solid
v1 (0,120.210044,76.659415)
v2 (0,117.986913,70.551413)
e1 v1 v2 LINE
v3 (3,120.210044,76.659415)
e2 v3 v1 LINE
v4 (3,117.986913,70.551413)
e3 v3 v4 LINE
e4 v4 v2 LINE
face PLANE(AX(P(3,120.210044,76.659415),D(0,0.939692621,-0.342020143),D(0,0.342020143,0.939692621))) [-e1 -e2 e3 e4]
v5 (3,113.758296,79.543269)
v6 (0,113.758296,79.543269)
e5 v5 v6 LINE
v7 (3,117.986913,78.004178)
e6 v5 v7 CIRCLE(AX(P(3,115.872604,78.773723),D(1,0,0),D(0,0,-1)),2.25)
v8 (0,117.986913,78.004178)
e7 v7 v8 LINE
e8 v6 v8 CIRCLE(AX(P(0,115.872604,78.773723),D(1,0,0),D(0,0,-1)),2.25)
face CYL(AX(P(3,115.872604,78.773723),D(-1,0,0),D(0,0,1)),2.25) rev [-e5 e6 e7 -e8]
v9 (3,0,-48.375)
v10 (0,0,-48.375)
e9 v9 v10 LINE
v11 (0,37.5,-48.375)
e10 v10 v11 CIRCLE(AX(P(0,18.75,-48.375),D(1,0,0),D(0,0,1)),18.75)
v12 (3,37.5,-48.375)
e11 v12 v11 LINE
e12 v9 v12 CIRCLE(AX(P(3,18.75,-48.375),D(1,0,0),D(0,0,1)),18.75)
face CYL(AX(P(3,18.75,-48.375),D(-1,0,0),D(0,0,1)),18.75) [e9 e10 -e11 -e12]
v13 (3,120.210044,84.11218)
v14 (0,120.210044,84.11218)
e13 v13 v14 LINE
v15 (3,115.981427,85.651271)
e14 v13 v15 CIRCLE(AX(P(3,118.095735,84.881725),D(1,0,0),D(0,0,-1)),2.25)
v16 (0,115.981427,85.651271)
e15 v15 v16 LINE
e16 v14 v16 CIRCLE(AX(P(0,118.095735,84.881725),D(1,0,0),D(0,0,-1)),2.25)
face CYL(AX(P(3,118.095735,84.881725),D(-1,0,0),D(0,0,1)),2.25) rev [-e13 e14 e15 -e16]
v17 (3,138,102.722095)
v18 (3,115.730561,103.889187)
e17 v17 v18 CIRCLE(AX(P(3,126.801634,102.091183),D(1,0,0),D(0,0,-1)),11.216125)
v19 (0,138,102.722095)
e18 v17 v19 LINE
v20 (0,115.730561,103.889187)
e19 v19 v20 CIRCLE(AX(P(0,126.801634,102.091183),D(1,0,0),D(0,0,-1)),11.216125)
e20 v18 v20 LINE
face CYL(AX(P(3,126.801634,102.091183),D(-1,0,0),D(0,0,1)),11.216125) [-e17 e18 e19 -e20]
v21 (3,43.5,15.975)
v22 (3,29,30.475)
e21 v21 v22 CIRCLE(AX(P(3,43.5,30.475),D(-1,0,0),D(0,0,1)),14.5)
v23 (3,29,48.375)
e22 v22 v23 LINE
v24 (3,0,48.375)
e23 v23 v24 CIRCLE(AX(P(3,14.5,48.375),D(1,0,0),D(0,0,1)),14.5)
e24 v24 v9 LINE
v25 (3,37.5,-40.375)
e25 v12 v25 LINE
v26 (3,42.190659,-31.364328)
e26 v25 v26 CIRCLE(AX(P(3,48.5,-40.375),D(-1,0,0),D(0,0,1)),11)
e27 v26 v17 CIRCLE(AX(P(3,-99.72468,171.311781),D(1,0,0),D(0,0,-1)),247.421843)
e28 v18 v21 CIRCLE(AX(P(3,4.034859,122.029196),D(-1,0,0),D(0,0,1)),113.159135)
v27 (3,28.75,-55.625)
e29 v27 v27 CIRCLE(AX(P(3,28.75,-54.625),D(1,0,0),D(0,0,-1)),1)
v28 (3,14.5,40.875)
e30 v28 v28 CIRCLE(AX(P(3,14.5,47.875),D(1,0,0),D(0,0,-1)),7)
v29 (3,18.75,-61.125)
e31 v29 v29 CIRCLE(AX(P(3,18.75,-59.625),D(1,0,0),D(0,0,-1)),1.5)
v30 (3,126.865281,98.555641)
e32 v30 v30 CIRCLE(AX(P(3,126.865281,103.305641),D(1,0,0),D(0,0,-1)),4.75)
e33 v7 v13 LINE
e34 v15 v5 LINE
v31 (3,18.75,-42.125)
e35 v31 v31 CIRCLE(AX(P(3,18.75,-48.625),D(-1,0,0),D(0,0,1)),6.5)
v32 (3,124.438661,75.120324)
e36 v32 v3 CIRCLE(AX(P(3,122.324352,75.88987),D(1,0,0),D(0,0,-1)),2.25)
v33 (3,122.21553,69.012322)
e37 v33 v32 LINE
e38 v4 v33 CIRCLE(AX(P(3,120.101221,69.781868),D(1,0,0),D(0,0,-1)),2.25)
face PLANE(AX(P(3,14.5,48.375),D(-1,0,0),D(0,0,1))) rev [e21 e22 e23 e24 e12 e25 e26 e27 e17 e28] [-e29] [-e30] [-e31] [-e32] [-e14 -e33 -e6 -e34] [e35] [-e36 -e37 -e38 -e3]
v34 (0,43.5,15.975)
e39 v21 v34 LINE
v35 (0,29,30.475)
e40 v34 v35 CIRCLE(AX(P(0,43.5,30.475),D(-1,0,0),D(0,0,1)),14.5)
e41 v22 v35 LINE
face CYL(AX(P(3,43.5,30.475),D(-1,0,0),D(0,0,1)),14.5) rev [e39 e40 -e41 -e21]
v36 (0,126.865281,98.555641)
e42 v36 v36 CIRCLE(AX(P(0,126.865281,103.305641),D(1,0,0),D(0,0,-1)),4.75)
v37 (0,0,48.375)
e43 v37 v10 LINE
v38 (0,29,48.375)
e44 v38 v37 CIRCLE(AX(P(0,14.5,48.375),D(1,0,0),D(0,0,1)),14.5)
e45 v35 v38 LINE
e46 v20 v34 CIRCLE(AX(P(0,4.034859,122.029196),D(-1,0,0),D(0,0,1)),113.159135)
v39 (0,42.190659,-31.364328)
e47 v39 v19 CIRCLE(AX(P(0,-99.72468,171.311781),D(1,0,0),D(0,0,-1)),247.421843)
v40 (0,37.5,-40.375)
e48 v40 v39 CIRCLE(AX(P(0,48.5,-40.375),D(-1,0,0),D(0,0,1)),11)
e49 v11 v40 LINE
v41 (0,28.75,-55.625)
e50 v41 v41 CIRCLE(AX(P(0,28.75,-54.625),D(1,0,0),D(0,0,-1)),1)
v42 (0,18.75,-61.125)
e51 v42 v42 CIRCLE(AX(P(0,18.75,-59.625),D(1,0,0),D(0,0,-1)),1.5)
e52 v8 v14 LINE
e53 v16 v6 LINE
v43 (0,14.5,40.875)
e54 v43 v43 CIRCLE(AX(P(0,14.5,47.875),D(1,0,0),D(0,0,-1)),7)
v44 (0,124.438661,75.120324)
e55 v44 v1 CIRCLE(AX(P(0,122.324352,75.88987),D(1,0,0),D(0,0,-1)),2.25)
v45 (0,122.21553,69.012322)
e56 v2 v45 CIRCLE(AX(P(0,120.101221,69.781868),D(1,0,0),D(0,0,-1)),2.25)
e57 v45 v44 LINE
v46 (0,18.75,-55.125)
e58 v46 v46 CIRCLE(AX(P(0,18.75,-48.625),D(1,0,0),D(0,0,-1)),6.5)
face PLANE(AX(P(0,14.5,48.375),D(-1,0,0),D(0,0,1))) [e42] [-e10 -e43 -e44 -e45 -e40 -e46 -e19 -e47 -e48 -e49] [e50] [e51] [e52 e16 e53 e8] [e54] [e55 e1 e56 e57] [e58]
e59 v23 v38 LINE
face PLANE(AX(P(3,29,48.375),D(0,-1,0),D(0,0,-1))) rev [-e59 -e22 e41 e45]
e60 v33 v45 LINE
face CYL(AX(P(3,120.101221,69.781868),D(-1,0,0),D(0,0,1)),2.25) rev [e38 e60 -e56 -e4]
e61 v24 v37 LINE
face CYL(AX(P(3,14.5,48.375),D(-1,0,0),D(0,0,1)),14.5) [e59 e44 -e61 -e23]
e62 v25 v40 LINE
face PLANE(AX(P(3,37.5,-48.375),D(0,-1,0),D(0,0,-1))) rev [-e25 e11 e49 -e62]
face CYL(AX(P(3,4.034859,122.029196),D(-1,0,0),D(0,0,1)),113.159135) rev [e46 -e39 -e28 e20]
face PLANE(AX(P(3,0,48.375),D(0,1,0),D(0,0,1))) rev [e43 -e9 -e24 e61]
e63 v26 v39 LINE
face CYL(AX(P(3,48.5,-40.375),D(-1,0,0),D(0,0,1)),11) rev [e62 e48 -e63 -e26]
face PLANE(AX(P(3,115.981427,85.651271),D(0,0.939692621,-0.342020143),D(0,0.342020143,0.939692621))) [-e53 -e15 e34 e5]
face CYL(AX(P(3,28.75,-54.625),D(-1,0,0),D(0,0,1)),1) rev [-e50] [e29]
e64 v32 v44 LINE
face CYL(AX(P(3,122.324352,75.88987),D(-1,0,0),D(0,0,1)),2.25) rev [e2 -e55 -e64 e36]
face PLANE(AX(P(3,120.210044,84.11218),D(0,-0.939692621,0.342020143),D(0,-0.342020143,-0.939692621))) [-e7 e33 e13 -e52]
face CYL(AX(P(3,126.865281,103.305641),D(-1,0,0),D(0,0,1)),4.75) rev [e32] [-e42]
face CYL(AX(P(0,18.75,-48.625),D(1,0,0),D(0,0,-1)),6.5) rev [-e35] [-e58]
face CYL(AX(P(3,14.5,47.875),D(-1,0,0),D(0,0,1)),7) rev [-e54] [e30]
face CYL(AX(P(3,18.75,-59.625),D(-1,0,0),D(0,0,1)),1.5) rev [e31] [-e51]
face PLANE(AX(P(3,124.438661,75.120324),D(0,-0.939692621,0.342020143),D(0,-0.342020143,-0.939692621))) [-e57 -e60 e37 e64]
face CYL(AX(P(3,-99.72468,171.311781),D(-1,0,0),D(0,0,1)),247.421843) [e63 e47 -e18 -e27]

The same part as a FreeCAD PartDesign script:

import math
import FreeCAD as App
import Part
import Sketcher
from FreeCAD import Vector
Q = App.Units.Quantity

doc = App.newDocument("Part")
body = doc.addObject("PartDesign::Body", "Body")

# Sketch on YZ plane
sketch1 = body.newObject("Sketcher::SketchObject", "Sketch")
sketch1.AttachmentSupport = (doc.getObject("YZ_Plane"), [""])
sketch1.MapMode = "FlatFace"
sketch1.addGeometry([
    Part.LineSegment(Vector(0, 48.4, 0), Vector(0, -48.4, 0)),  # 0
    Part.ArcOfCircle(Part.Circle(Vector(18.8, -48.4, 0), Vector(0, 0, 1), 18.8), math.radians(180), math.radians(360)),  # 1
    Part.LineSegment(Vector(37.5, -48.4, 0), Vector(37.5, -40.4, 0)),  # 2
    Part.ArcOfCircle(Part.Circle(Vector(48.5, -40.4, 0), Vector(0, 0, 1), 11), math.radians(125), math.radians(180)),  # 3
    Part.ArcOfCircle(Part.Circle(Vector(-99.7, 171.3, 0), Vector(0, 0, 1), 247.4), math.radians(-55), math.radians(-16)),  # 4
    Part.ArcOfCircle(Part.Circle(Vector(126.8, 102.1, 0), Vector(0, 0, 1), 11.2), math.radians(3), math.radians(171)),  # 5
    Part.ArcOfCircle(Part.Circle(Vector(4, 122, 0), Vector(0, 0, 1), 113.2), math.radians(-70), math.radians(-9)),  # 6
    Part.ArcOfCircle(Part.Circle(Vector(43.5, 30.5, 0), Vector(0, 0, 1), 14.5), math.radians(-180), math.radians(-90)),  # 7
    Part.LineSegment(Vector(29, 30.5, 0), Vector(29, 48.4, 0)),  # 8
    Part.ArcOfCircle(Part.Circle(Vector(14.5, 48.4, 0), Vector(0, 0, 1), 14.5), math.radians(0), math.radians(180)),  # 9
    Part.Circle(Vector(14.5, 47.9, 0), Vector(0, 0, 1), 7),  # 10
    Part.ArcOfCircle(Part.Circle(Vector(18.8, -46.6, 0), Vector(0, 0, 1), 4.5), math.radians(0), math.radians(180)),  # 11
    Part.LineSegment(Vector(23.2, -46.6, 0), Vector(23.2, -48.6, 0)),  # 12
    Part.ArcOfCircle(Part.Circle(Vector(18.8, -48.6, 0), Vector(0, 0, 1), 4.5), math.radians(180), math.radians(360)),  # 13
    Part.LineSegment(Vector(14.2, -48.6, 0), Vector(14.2, -46.6, 0)),  # 14
    Part.Circle(Vector(18.8, -59.6, 0), Vector(0, 0, 1), 1.5),  # 15
    Part.Circle(Vector(28.8, -54.6, 0), Vector(0, 0, 1), 1),  # 16
    Part.Circle(Vector(126.9, 103.3, 0), Vector(0, 0, 1), 4.8),  # 17
    Part.ArcOfCircle(Part.Circle(Vector(118.1, 84.9, 0), Vector(0, 0, 1), 2.2), math.radians(-20), math.radians(160)),  # 18
    Part.LineSegment(Vector(120.2, 84.1, 0), Vector(118, 78, 0)),  # 19
    Part.ArcOfCircle(Part.Circle(Vector(115.9, 78.8, 0), Vector(0, 0, 1), 2.2), math.radians(160), math.radians(340)),  # 20
    Part.LineSegment(Vector(113.8, 79.5, 0), Vector(116, 85.7, 0)),  # 21
    Part.ArcOfCircle(Part.Circle(Vector(122.3, 75.9, 0), Vector(0, 0, 1), 2.2), math.radians(-20), math.radians(160)),  # 22
    Part.LineSegment(Vector(124.4, 75.1, 0), Vector(122.2, 69, 0)),  # 23
    Part.ArcOfCircle(Part.Circle(Vector(120.1, 69.8, 0), Vector(0, 0, 1), 2.2), math.radians(160), math.radians(340)),  # 24
    Part.LineSegment(Vector(118, 70.6, 0), Vector(120.2, 76.7, 0)),  # 25
], False)
sketch1.addConstraint([
    Sketcher.Constraint("Tangent", 0, 2, 1, 1),
    Sketcher.Constraint("Tangent", 1, 2, 2, 1),
    Sketcher.Constraint("Tangent", 2, 2, 3, 2),
    Sketcher.Constraint("Tangent", 3, 1, 4, 1),
    Sketcher.Constraint("Coincident", 4, 2, 5, 1),
    Sketcher.Constraint("Tangent", 5, 2, 6, 2),
    Sketcher.Constraint("Coincident", 6, 1, 7, 2),
    Sketcher.Constraint("Tangent", 7, 1, 8, 1),
    Sketcher.Constraint("Tangent", 8, 2, 9, 1),
    Sketcher.Constraint("Tangent", 9, 2, 0, 1),
    Sketcher.Constraint("Tangent", 11, 1, 12, 1),
    Sketcher.Constraint("Tangent", 12, 2, 13, 2),
    Sketcher.Constraint("Tangent", 13, 1, 14, 1),
    Sketcher.Constraint("Tangent", 14, 2, 11, 2),
    Sketcher.Constraint("Tangent", 18, 1, 19, 1),
    Sketcher.Constraint("Tangent", 19, 2, 20, 2),
    Sketcher.Constraint("Tangent", 20, 1, 21, 1),
    Sketcher.Constraint("Tangent", 21, 2, 18, 2),
    Sketcher.Constraint("Tangent", 22, 1, 23, 1),
    Sketcher.Constraint("Tangent", 23, 2, 24, 2),
    Sketcher.Constraint("Tangent", 24, 1, 25, 1),
    Sketcher.Constraint("Tangent", 25, 2, 22, 2),
    Sketcher.Constraint("Vertical", 0),
    Sketcher.Constraint("Vertical", 2),
    Sketcher.Constraint("Vertical", 8),
    Sketcher.Constraint("Vertical", 12),
    Sketcher.Constraint("Vertical", 14),
    Sketcher.Constraint("Equal", 7, 9),
    Sketcher.Constraint("Equal", 18, 20),
    Sketcher.Constraint("Equal", 20, 22),
    Sketcher.Constraint("Equal", 22, 24),
    Sketcher.Constraint("Symmetric", 0, 2, 9, 2, -1, 1),
    Sketcher.Constraint("Parallel", 21, 23),
    Sketcher.Constraint("Vertical", 9, 3, 10, 3),
    Sketcher.Constraint("Vertical", 1, 3, 11, 3),
    Sketcher.Constraint("Vertical", 13, 3, 15, 3),
    Sketcher.Constraint("Vertical", 7, 3, 6, 1),
    Sketcher.Constraint("Vertical", 19, 2, 24, 1),
    Sketcher.Constraint("Vertical", 18, 1, 25, 2),
    Sketcher.Constraint("Diameter", 10, 14.0),
    Sketcher.Constraint("Diameter", 15, 3.0),
    Sketcher.Constraint("Diameter", 16, 2.0),
    Sketcher.Constraint("Radius", 3, 11.0),
    Sketcher.Constraint("Diameter", 17, 9.5),
    Sketcher.Constraint("Radius", 7, 14.5),
    Sketcher.Constraint("Radius", 11, 4.5),
    Sketcher.Constraint("DistanceY", 2, 1, 2, 2, 8.0),
    Sketcher.Constraint("DistanceY", 12, 2, 12, 1, 2.0),
    Sketcher.Constraint("Angle", 19, Q("-110 deg")),
    Sketcher.Constraint("Radius", 1, 18.75),
    Sketcher.Constraint("Radius", 18, 2.25),
    Sketcher.Constraint("DistanceY", 8, 1, 8, 2, 17.9),
    Sketcher.Constraint("DistanceX", -1, 1, 4, 2, 138.0),
    Sketcher.Constraint("DistanceY", 11, 3, 9, 3, 95.0),
    Sketcher.Constraint("DistanceY", 15, 3, 13, 3, 11.0),
    Sketcher.Constraint("DistanceX", 15, 3, 16, 3, 10.0),
    Sketcher.Constraint("DistanceY", 15, 3, 16, 3, 5.0),
    Sketcher.Constraint("Distance", 19, 6.5),
    Sketcher.Constraint("DistanceY", 0, 2, 0, 1, 96.75),
    Sketcher.Constraint("DistanceY", 10, 3, 9, 3, 0.5),
    Sketcher.Constraint("Radius", 4, 247.421843),
    Sketcher.Constraint("Radius", 5, 11.216125),
    Sketcher.Constraint("Radius", 6, 113.159135),
    Sketcher.Constraint("DistanceY", 5, 3, 4, 3, 69.220598),
    Sketcher.Constraint("DistanceX", 18, 3, 5, 3, 8.705898),
    Sketcher.Constraint("DistanceY", 22, 3, 20, 1, 3.653399),
    Sketcher.Constraint("DistanceX", 4, 3, -1, 1, 99.72468),
    Sketcher.Constraint("DistanceX", -1, 1, 17, 3, 126.865281),
    Sketcher.Constraint("DistanceY", -1, 1, 17, 3, 103.305641),
    Sketcher.Constraint("DistanceY", -1, 1, 22, 3, 75.88987),
])
pad1 = body.newObject("PartDesign::Pad", "Pad")
pad1.Profile = sketch1
pad1.Length = 3

# Sketch on YZ plane
sketch2 = body.newObject("Sketcher::SketchObject", "Sketch001")
sketch2.AttachmentSupport = (doc.getObject("YZ_Plane"), [""])
sketch2.MapMode = "FlatFace"
sketch2.AttachmentOffset = App.Placement(Vector(0, 0, 3), App.Rotation())
sketch2.addGeometry(Part.Circle(Vector(19, -49, 0), Vector(0, 0, 1), 6), False)
sketch2.addConstraint([
    Sketcher.Constraint("Diameter", 0, 13.0),
    Sketcher.Constraint("DistanceX", -1, 1, 0, 3, 18.75),
    Sketcher.Constraint("DistanceY", 0, 3, -1, 1, 48.625),
])
pocket1 = body.newObject("PartDesign::Pocket", "Pocket")
pocket1.Profile = sketch2
pocket1.Type = "ThroughAll"
pocket1.Midplane = True

doc.recompute()
